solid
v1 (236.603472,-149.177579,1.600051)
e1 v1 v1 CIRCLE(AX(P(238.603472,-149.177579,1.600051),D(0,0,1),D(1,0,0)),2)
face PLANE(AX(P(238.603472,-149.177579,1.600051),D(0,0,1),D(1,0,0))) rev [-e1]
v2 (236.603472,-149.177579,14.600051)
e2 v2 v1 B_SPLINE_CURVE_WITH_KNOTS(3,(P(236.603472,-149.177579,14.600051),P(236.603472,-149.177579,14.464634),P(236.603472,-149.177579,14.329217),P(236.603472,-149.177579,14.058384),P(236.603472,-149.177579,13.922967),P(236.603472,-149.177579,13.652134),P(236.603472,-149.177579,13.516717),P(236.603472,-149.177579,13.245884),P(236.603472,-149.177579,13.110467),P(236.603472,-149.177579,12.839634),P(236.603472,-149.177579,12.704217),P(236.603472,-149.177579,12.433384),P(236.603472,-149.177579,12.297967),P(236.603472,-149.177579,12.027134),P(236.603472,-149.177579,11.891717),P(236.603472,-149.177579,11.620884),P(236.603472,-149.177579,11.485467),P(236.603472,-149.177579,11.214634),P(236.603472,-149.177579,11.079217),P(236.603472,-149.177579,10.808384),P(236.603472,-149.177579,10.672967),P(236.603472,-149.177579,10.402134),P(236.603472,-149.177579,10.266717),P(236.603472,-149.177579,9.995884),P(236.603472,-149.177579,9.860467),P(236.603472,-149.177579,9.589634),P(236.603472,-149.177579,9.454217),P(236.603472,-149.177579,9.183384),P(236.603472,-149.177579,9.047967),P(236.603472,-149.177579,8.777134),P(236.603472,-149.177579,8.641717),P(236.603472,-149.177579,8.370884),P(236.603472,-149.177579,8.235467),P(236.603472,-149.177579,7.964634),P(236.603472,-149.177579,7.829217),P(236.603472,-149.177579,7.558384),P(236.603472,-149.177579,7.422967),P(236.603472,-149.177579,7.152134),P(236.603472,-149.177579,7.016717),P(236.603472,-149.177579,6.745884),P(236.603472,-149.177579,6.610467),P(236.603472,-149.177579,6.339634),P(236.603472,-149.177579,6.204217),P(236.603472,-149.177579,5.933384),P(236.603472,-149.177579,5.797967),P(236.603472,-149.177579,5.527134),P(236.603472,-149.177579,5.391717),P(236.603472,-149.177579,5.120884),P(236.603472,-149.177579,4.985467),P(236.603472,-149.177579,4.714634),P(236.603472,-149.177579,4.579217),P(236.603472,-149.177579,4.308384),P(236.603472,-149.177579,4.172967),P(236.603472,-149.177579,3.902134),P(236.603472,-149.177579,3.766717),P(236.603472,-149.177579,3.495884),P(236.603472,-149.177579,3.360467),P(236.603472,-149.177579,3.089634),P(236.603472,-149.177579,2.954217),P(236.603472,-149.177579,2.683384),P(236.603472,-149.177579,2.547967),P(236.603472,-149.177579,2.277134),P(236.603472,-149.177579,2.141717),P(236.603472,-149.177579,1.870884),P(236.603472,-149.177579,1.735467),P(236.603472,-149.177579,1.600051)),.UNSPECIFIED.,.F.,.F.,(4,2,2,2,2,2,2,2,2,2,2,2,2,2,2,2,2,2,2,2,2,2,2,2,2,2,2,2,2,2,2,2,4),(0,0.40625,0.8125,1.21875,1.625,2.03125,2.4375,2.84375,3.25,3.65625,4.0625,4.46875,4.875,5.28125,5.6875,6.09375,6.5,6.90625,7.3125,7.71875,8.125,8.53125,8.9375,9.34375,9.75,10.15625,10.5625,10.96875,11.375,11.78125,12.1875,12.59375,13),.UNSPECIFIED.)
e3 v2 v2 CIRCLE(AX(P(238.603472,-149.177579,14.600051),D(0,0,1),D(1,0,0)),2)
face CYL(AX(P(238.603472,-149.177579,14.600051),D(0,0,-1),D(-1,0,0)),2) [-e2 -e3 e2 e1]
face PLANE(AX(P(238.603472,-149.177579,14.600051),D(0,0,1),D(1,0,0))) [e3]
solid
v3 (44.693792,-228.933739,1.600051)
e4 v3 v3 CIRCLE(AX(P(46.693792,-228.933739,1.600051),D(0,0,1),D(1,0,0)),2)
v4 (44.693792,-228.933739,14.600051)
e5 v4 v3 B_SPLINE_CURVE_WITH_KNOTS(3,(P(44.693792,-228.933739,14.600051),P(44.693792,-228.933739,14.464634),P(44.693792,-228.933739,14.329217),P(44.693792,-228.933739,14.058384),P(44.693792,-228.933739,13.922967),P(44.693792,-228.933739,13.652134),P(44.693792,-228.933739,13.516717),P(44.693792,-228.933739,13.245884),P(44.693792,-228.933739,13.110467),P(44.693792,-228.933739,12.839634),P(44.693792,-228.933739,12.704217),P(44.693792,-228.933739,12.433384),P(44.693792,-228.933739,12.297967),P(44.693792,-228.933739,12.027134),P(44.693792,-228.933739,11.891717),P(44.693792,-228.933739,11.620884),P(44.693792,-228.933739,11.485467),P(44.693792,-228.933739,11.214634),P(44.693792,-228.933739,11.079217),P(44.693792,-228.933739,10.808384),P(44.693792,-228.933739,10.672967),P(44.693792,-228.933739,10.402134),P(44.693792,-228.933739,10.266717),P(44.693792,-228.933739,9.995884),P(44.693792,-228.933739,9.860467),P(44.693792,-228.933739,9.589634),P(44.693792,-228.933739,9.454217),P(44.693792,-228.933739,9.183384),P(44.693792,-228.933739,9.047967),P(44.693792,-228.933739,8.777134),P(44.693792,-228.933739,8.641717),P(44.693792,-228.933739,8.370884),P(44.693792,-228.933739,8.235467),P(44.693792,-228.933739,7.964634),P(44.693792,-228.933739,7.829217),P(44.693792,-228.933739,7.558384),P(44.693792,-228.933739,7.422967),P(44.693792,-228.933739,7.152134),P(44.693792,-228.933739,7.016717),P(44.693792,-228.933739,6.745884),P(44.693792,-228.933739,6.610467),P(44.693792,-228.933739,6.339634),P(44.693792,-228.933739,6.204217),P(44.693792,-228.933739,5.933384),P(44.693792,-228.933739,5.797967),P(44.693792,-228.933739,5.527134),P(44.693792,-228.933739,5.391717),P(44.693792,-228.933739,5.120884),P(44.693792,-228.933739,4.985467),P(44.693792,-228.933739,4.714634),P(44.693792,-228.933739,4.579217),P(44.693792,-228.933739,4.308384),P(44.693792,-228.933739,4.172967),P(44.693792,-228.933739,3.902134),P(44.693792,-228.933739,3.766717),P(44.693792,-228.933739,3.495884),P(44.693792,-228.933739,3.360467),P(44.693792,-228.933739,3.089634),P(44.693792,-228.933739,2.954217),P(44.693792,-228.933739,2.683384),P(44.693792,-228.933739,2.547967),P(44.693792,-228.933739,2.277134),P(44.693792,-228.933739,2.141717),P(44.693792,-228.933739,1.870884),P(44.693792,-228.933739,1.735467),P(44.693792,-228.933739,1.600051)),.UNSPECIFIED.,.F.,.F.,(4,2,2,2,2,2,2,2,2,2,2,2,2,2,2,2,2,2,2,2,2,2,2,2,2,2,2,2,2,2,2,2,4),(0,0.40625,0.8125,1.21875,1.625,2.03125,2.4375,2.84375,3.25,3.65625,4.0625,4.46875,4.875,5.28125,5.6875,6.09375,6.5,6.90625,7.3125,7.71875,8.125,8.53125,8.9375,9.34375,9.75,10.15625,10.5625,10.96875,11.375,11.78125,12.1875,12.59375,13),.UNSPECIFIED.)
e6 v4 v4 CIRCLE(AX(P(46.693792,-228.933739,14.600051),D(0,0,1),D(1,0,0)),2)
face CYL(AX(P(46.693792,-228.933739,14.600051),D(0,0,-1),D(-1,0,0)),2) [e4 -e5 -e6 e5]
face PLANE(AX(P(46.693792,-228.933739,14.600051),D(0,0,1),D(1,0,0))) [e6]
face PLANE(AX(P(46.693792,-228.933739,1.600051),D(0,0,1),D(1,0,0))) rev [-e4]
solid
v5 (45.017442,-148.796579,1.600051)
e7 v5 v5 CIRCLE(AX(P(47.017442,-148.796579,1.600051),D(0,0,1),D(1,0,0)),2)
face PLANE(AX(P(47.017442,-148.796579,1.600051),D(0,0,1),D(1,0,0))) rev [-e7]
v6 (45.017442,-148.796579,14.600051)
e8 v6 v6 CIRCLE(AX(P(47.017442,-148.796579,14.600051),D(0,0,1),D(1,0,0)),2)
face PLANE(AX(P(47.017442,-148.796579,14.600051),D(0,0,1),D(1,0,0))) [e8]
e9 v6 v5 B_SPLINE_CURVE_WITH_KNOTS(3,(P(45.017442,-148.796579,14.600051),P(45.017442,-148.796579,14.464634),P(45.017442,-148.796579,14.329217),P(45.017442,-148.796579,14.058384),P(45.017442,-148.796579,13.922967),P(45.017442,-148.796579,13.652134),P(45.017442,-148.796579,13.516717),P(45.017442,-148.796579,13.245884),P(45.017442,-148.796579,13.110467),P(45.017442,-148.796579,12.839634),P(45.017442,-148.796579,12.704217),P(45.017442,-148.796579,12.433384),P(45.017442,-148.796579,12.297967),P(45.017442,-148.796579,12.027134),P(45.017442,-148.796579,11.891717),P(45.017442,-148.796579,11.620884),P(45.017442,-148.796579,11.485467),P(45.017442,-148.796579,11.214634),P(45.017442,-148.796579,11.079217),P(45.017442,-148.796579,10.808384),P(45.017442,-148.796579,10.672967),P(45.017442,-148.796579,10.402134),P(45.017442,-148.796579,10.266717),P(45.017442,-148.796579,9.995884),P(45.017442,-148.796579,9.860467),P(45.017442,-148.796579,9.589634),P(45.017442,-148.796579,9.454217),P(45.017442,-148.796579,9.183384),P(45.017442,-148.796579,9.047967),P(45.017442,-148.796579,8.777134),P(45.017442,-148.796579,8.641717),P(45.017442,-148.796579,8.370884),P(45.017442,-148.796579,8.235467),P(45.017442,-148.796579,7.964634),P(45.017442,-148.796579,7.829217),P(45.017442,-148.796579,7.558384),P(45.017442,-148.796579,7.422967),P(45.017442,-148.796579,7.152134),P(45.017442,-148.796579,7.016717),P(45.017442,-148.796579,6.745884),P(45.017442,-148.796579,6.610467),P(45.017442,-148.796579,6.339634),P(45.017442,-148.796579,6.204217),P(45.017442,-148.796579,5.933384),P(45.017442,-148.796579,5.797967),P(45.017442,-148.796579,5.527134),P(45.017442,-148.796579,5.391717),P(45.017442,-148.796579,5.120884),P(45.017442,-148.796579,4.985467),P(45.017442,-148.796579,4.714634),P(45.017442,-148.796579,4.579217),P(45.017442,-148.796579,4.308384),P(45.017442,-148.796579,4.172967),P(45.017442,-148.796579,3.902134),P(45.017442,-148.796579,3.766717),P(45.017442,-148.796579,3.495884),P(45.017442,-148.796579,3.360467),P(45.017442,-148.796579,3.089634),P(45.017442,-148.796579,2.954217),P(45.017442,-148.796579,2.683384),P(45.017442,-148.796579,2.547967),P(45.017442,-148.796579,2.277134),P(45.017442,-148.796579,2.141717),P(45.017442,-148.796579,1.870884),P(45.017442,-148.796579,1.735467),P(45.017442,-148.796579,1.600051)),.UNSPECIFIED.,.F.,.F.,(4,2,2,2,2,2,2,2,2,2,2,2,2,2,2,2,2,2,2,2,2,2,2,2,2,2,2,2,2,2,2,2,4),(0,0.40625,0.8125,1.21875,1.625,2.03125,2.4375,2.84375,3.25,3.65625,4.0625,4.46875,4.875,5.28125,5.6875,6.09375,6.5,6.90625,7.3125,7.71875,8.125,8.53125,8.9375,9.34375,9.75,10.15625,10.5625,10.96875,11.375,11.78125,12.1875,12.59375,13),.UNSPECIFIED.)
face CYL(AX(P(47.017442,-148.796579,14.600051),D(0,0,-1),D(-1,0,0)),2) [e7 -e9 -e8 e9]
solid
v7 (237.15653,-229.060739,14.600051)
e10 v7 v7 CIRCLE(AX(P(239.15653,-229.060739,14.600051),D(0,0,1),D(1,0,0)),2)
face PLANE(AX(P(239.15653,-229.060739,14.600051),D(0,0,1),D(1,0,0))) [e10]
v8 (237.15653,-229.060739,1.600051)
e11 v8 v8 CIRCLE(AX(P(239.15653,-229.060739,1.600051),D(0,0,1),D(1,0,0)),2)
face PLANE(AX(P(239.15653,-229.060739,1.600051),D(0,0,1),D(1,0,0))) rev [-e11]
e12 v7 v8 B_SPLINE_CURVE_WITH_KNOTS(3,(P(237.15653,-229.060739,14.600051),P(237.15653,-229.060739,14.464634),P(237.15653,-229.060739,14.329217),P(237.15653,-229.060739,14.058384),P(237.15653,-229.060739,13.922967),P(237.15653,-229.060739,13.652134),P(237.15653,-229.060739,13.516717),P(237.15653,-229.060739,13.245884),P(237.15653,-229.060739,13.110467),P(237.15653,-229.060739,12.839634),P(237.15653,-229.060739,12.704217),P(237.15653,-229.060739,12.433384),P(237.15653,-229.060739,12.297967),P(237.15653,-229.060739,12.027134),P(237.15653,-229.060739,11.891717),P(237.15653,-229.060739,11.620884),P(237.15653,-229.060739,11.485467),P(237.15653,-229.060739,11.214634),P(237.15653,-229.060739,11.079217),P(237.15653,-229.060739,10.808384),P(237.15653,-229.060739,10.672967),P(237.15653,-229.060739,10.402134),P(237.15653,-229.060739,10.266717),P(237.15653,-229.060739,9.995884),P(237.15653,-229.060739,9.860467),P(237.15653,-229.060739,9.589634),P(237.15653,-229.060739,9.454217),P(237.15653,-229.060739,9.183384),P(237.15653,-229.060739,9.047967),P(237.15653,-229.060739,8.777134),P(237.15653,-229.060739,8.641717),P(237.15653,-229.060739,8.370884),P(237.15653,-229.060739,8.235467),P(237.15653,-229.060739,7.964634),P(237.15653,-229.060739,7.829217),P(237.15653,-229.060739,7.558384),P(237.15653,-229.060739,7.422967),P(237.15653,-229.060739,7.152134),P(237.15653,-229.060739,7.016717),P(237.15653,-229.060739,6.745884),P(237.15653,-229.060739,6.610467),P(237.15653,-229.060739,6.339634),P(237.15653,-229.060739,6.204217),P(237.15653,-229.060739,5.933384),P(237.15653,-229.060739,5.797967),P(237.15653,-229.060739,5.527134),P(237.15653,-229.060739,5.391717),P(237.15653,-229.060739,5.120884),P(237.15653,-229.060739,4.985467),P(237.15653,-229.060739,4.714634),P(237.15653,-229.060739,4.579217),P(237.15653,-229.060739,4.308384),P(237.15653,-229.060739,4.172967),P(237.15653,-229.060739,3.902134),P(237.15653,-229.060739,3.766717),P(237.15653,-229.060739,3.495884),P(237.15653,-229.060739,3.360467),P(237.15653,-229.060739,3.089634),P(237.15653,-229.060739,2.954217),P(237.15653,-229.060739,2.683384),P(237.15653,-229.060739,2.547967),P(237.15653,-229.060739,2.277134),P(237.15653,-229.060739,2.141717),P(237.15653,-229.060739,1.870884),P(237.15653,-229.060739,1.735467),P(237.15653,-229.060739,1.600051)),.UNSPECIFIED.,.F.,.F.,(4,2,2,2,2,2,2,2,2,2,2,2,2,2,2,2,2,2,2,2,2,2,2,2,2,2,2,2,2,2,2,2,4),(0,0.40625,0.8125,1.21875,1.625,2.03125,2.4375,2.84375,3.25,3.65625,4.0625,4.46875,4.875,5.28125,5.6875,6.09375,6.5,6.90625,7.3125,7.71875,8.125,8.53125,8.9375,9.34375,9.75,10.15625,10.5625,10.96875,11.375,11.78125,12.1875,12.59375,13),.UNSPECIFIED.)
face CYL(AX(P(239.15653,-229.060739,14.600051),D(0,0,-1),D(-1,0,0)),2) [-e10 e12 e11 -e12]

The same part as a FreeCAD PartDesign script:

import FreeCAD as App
import Part
import Sketcher
from FreeCAD import Vector
Q = App.Units.Quantity

doc = App.newDocument("Part")
body = doc.addObject("PartDesign::Body", "Body")

sketch1 = body.newObject("Sketcher::SketchObject", "Sketch")
sketch1.AttachmentSupport = (doc.getObject("XY_Plane"), [""])
sketch1.MapMode = "FlatFace"
sketch1.AttachmentOffset = App.Placement(Vector(0, 0, 1.600051), App.Rotation())
sketch1.addGeometry(Part.Circle(Vector(47, -148.8, 0), Vector(0, 0, 1), 2), False)
sketch1.addConstraint([
    Sketcher.Constraint("Diameter", 0, Q("4 mm")),
    Sketcher.Constraint("DistanceY", 0, 3, -1, 1, Q("148.796579 mm")),
    Sketcher.Constraint("DistanceX", -1, 1, 0, 3, Q("47.017442 mm")),
])
pad1 = body.newObject("PartDesign::Pad", "Pad")
pad1.Profile = sketch1
pad1.Length = 13
body2 = doc.addObject("PartDesign::Body", "Body001")

sketch2 = body2.newObject("Sketcher::SketchObject", "Sketch001")
sketch2.AttachmentSupport = (doc.getObject("XY_Plane001"), [""])
sketch2.MapMode = "FlatFace"
sketch2.AttachmentOffset = App.Placement(Vector(0, 0, 1.600051), App.Rotation())
sketch2.addGeometry(Part.Circle(Vector(238.6, -149.2, 0), Vector(0, 0, 1), 2), False)
sketch2.addConstraint([
    Sketcher.Constraint("Diameter", 0, Q("4 mm")),
    Sketcher.Constraint("DistanceY", 0, 3, -1, 1, Q("149.177579 mm")),
    Sketcher.Constraint("DistanceX", -1, 1, 0, 3, Q("238.603472 mm")),
])
pad2 = body2.newObject("PartDesign::Pad", "Pad001")
pad2.Profile = sketch2
pad2.Length = 13
body3 = doc.addObject("PartDesign::Body", "Body002")

sketch3 = body3.newObject("Sketcher::SketchObject", "Sketch002")
sketch3.AttachmentSupport = (doc.getObject("XY_Plane002"), [""])
sketch3.MapMode = "FlatFace"
sketch3.AttachmentOffset = App.Placement(Vector(0, 0, 1.600051), App.Rotation())
sketch3.addGeometry(Part.Circle(Vector(239.2, -229.1, 0), Vector(0, 0, 1), 2), False)
sketch3.addConstraint([
    Sketcher.Constraint("Diameter", 0, Q("4 mm")),
    Sketcher.Constraint("DistanceX", -1, 1, 0, 3, Q("239.15653 mm")),
    Sketcher.Constraint("DistanceY", 0, 3, -1, 1, Q("229.060739 mm")),
])
pad3 = body3.newObject("PartDesign::Pad", "Pad002")
pad3.Profile = sketch3
pad3.Length = 13
body4 = doc.addObject("PartDesign::Body", "Body003")

sketch4 = body4.newObject("Sketcher::SketchObject", "Sketch003")
sketch4.AttachmentSupport = (doc.getObject("XY_Plane003"), [""])
sketch4.MapMode = "FlatFace"
sketch4.AttachmentOffset = App.Placement(Vector(0, 0, 1.600051), App.Rotation())
sketch4.addGeometry(Part.Circle(Vector(46.7, -228.9, 0), Vector(0, 0, 1), 2), False)
sketch4.addConstraint([
    Sketcher.Constraint("Diameter", 0, Q("4 mm")),
    Sketcher.Constraint("DistanceY", 0, 3, -1, 1, Q("228.933739 mm")),
    Sketcher.Constraint("DistanceX", -1, 1, 0, 3, Q("46.693792 mm")),
])
pad4 = body4.newObject("PartDesign::Pad", "Pad003")
pad4.Profile = sketch4
pad4.Length = 13

doc.recompute()
